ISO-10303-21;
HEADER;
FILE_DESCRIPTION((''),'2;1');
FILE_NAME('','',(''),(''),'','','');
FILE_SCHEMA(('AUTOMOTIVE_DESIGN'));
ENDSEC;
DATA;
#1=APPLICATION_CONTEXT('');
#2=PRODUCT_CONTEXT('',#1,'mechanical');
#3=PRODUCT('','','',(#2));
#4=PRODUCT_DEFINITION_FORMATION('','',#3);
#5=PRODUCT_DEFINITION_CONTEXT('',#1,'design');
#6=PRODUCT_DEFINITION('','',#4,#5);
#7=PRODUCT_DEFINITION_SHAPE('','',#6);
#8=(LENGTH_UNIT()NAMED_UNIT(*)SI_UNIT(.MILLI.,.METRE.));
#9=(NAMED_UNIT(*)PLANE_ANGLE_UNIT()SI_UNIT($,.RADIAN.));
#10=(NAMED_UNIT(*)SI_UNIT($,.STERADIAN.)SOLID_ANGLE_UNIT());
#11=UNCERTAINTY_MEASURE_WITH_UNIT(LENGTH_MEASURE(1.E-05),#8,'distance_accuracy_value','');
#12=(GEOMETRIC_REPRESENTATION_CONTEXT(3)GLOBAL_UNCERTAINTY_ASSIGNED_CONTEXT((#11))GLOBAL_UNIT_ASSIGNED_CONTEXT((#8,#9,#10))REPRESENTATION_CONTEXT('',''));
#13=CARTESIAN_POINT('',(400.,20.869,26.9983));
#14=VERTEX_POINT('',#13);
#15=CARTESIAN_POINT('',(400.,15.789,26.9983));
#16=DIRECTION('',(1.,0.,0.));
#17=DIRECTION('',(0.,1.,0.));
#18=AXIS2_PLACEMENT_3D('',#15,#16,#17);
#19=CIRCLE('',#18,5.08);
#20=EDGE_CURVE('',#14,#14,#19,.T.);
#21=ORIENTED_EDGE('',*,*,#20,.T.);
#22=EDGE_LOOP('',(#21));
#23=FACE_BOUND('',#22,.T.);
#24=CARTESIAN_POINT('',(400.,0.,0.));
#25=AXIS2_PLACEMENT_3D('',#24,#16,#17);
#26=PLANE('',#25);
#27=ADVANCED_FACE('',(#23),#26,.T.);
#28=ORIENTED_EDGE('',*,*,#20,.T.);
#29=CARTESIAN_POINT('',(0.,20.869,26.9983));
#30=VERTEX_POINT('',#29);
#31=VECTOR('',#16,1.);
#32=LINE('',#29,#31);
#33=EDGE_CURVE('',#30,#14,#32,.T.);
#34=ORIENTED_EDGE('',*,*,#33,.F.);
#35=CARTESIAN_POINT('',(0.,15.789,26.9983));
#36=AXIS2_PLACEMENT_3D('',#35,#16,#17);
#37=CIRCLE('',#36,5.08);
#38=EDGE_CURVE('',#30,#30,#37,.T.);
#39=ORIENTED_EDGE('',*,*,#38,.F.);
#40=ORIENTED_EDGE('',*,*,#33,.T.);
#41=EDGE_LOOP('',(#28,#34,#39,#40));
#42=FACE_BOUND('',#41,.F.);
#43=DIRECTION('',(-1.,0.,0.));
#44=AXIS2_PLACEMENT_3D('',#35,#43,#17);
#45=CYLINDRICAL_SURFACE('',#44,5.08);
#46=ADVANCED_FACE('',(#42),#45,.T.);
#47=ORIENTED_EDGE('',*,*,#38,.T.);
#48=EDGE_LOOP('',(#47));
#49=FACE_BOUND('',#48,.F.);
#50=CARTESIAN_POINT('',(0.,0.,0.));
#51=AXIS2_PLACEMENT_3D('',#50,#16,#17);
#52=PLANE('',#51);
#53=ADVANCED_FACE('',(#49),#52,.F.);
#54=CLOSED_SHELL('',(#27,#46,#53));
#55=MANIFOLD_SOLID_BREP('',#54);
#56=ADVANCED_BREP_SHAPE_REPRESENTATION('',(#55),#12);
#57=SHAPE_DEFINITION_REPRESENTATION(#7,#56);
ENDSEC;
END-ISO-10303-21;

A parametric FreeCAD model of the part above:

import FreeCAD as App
import Part
import Sketcher

V = App.Vector

doc = App.newDocument("Part")
body = doc.addObject("PartDesign::Body", "Body")

# Sketch on YZ plane
sketch1 = body.newObject("Sketcher::SketchObject", "Sketch")
sketch1.AttachmentSupport = (doc.getObject("YZ_Plane"), [""])
sketch1.MapMode = "FlatFace"
sketch1.addGeometry(Part.Circle(V(16, 27, 0), V(0, 0, 1), 5), False)
sketch1.addConstraint(Sketcher.Constraint("Diameter", 0, 10.16))
sketch1.addConstraint(Sketcher.Constraint("DistanceX", -1, 1, 0, 3, 15.789))
sketch1.addConstraint(Sketcher.Constraint("DistanceY", -1, 1, 0, 3, 26.9983))
pad1 = body.newObject("PartDesign::Pad", "Pad")
pad1.Profile = sketch1
pad1.Length = 400

doc.recompute()
